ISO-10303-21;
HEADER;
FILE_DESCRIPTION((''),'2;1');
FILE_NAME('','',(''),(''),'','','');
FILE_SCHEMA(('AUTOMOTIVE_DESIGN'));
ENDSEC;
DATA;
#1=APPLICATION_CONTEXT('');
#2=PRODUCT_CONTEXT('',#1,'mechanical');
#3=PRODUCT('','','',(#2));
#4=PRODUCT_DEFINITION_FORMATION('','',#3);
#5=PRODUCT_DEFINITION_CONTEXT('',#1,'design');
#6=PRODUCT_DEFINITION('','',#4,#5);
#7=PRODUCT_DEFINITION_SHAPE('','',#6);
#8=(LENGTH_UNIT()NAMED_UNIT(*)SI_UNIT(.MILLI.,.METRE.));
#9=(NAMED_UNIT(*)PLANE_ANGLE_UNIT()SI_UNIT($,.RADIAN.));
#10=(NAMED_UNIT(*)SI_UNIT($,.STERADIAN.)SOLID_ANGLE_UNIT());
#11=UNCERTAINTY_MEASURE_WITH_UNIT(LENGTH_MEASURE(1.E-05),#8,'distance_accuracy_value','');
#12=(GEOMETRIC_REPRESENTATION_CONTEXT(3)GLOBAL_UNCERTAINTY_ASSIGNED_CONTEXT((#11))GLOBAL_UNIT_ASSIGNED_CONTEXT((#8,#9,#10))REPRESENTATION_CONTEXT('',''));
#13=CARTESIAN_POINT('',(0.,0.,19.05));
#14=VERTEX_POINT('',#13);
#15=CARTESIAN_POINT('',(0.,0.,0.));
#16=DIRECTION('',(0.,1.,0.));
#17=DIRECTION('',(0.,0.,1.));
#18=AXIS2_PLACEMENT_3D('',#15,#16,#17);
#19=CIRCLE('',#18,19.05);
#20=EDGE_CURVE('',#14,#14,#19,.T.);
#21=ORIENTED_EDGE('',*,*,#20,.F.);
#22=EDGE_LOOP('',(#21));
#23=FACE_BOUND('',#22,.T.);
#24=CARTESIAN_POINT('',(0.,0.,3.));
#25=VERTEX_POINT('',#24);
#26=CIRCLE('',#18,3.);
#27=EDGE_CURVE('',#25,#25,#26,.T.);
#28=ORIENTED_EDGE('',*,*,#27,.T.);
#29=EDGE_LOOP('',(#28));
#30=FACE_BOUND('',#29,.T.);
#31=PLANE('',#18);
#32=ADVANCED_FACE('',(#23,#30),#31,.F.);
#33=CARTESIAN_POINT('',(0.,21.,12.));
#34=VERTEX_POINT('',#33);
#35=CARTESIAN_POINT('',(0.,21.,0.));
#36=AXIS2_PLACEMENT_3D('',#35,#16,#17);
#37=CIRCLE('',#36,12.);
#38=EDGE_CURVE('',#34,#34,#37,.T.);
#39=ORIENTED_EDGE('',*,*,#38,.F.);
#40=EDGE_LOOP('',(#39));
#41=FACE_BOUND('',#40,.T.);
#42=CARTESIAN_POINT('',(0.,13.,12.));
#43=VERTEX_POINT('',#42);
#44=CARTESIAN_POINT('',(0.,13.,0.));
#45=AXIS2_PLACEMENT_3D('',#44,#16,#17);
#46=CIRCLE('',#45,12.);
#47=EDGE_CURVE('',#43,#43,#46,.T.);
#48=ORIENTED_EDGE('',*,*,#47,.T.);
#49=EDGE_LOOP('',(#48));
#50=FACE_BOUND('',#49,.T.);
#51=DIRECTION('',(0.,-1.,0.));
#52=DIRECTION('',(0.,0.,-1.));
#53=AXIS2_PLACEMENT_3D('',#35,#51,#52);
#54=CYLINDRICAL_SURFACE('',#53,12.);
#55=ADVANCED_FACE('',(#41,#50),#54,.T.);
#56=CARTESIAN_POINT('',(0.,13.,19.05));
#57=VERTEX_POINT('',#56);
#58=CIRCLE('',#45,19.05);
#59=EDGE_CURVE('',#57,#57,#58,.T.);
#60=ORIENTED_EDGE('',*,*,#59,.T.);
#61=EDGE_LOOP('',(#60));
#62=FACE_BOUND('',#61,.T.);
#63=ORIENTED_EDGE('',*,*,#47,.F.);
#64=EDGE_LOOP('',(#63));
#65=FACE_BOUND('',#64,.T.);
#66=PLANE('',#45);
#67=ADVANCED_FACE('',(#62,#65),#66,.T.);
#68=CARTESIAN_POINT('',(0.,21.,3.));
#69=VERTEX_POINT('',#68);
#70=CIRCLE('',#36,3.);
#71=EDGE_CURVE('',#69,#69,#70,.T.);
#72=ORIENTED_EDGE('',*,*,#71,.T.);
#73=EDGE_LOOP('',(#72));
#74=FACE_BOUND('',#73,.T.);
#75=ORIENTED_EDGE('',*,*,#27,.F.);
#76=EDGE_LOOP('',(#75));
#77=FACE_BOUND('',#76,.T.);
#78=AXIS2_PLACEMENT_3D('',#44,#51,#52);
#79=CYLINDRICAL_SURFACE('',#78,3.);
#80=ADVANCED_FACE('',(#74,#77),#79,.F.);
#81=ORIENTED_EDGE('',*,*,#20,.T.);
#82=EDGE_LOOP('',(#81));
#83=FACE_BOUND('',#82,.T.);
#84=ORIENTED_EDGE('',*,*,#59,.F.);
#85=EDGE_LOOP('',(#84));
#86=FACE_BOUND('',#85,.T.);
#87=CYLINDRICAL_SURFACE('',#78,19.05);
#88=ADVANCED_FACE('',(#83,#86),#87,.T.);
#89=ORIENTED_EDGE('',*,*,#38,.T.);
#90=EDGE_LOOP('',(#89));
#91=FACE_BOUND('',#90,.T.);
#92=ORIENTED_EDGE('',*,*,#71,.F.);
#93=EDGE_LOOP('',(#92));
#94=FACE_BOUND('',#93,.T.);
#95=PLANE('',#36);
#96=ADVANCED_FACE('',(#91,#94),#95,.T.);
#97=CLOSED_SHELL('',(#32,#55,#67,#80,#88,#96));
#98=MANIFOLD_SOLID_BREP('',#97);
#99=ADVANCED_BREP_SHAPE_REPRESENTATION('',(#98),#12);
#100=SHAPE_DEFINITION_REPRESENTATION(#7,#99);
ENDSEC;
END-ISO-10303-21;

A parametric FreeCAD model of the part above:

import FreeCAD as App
import Part
import Sketcher
from FreeCAD import Vector

doc = App.newDocument("Part")
body = doc.addObject("PartDesign::Body", "Body")

# Sketch on XZ plane
sketch1 = body.newObject("Sketcher::SketchObject", "Sketch")
sketch1.AttachmentSupport = (doc.getObject("XZ_Plane"), [""])
sketch1.MapMode = "FlatFace"
sketch1.addGeometry([
    Part.Circle(Vector(0, 0, 0), Vector(0, 0, 1), 19.1),
    Part.Circle(Vector(0, 0, 0), Vector(0, 0, 1), 3),
], False)
sketch1.addConstraint([
    Sketcher.Constraint("Coincident", 0, 3, -1, 1),
    Sketcher.Constraint("Coincident", 1, 3, -1, 1),
    Sketcher.Constraint("Diameter", 1, 6.0),
    Sketcher.Constraint("Diameter", 0, 38.1),
])
pad1 = body.newObject("PartDesign::Pad", "Pad")
pad1.Profile = sketch1
pad1.Length = 13
pad1.Reversed = True

# Sketch on XZ plane
sketch2 = body.newObject("Sketcher::SketchObject", "Sketch001")
sketch2.AttachmentSupport = (doc.getObject("XZ_Plane"), [""])
sketch2.MapMode = "FlatFace"
sketch2.AttachmentOffset = App.Placement(Vector(0, 0, -13), App.Rotation())
sketch2.addGeometry([
    Part.Circle(Vector(0, 0, 0), Vector(0, 0, 1), 12),
    Part.Circle(Vector(0, 0, 0), Vector(0, 0, 1), 3),
], False)
sketch2.addConstraint([
    Sketcher.Constraint("Coincident", 0, 3, -1, 1),
    Sketcher.Constraint("Coincident", 1, 3, -1, 1),
    Sketcher.Constraint("Diameter", 0, 24.0),
    Sketcher.Constraint("Diameter", 1, 6.0),
])
pad2 = body.newObject("PartDesign::Pad", "Pad001")
pad2.Profile = sketch2
pad2.Length = 8
pad2.Reversed = True

doc.recompute()
